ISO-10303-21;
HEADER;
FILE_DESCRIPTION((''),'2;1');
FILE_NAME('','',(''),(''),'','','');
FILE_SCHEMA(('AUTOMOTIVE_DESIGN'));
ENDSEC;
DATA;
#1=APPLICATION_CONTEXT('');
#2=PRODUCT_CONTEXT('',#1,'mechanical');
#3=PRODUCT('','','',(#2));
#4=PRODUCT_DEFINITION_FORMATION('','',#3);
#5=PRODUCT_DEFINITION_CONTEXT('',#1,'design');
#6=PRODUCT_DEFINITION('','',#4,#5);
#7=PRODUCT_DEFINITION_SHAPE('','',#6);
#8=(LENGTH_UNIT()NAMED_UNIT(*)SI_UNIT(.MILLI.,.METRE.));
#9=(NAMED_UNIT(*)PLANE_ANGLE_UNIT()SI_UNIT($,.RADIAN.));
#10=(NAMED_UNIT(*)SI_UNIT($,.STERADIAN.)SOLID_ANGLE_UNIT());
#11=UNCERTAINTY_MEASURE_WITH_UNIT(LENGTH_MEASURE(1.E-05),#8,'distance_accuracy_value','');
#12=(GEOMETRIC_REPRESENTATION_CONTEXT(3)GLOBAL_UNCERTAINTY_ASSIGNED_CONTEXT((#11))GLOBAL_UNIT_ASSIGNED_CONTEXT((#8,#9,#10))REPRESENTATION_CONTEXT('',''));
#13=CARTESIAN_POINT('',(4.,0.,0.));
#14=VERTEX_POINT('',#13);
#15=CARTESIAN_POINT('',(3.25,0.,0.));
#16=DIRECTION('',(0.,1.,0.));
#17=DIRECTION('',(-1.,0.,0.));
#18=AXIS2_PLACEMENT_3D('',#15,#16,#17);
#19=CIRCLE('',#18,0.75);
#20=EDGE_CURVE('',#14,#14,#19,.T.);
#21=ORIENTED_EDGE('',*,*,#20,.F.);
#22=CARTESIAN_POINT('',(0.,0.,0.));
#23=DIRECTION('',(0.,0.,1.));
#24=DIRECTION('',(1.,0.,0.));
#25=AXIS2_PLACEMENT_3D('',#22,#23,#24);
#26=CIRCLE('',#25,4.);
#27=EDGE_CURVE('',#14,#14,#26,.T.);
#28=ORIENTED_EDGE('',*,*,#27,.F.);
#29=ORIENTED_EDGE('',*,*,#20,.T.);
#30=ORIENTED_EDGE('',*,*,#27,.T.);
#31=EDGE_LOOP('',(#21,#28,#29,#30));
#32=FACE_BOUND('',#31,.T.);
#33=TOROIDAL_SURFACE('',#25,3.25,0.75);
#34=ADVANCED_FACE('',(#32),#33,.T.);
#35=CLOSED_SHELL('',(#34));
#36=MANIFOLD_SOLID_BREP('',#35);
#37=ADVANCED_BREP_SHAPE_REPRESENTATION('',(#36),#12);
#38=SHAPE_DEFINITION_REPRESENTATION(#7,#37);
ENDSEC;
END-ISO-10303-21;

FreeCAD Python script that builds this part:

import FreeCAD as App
import Part
import Sketcher
from FreeCAD import Vector

doc = App.newDocument("Part")
body = doc.addObject("PartDesign::Body", "Body")

# Sketch on XZ plane
sketch1 = body.newObject("Sketcher::SketchObject", "Sketch")
sketch1.AttachmentSupport = (doc.getObject("XZ_Plane"), [""])
sketch1.MapMode = "FlatFace"
sketch1.addGeometry(Part.Circle(Vector(3.2, 0, 0), Vector(0, 0, 1), 0.8), False)
sketch1.addConstraint([
    Sketcher.Constraint("PointOnObject", 0, 3, -1),
    Sketcher.Constraint("Diameter", 0, 1.5),
    Sketcher.Constraint("DistanceX", -1, 1, 0, 3, 3.25),
])

# Sketch on XY plane
sketch2 = body.newObject("Sketcher::SketchObject", "Sketch001")
sketch2.AttachmentSupport = (doc.getObject("XY_Plane"), [""])
sketch2.MapMode = "FlatFace"
sketch2.addGeometry(Part.Circle(Vector(0, 0, 0), Vector(0, 0, 1), 3.2), False)
sketch2.addConstraint([
    Sketcher.Constraint("Coincident", 0, 3, -1, 1),
    Sketcher.Constraint("Diameter", 0, 6.5),
])
doc.recompute()

additivepipe = body.newObject("PartDesign::AdditivePipe", "AdditivePipe")
additivepipe.Profile = sketch1
additivepipe.Spine = (sketch2, ["Edge1"])

doc.recompute()
